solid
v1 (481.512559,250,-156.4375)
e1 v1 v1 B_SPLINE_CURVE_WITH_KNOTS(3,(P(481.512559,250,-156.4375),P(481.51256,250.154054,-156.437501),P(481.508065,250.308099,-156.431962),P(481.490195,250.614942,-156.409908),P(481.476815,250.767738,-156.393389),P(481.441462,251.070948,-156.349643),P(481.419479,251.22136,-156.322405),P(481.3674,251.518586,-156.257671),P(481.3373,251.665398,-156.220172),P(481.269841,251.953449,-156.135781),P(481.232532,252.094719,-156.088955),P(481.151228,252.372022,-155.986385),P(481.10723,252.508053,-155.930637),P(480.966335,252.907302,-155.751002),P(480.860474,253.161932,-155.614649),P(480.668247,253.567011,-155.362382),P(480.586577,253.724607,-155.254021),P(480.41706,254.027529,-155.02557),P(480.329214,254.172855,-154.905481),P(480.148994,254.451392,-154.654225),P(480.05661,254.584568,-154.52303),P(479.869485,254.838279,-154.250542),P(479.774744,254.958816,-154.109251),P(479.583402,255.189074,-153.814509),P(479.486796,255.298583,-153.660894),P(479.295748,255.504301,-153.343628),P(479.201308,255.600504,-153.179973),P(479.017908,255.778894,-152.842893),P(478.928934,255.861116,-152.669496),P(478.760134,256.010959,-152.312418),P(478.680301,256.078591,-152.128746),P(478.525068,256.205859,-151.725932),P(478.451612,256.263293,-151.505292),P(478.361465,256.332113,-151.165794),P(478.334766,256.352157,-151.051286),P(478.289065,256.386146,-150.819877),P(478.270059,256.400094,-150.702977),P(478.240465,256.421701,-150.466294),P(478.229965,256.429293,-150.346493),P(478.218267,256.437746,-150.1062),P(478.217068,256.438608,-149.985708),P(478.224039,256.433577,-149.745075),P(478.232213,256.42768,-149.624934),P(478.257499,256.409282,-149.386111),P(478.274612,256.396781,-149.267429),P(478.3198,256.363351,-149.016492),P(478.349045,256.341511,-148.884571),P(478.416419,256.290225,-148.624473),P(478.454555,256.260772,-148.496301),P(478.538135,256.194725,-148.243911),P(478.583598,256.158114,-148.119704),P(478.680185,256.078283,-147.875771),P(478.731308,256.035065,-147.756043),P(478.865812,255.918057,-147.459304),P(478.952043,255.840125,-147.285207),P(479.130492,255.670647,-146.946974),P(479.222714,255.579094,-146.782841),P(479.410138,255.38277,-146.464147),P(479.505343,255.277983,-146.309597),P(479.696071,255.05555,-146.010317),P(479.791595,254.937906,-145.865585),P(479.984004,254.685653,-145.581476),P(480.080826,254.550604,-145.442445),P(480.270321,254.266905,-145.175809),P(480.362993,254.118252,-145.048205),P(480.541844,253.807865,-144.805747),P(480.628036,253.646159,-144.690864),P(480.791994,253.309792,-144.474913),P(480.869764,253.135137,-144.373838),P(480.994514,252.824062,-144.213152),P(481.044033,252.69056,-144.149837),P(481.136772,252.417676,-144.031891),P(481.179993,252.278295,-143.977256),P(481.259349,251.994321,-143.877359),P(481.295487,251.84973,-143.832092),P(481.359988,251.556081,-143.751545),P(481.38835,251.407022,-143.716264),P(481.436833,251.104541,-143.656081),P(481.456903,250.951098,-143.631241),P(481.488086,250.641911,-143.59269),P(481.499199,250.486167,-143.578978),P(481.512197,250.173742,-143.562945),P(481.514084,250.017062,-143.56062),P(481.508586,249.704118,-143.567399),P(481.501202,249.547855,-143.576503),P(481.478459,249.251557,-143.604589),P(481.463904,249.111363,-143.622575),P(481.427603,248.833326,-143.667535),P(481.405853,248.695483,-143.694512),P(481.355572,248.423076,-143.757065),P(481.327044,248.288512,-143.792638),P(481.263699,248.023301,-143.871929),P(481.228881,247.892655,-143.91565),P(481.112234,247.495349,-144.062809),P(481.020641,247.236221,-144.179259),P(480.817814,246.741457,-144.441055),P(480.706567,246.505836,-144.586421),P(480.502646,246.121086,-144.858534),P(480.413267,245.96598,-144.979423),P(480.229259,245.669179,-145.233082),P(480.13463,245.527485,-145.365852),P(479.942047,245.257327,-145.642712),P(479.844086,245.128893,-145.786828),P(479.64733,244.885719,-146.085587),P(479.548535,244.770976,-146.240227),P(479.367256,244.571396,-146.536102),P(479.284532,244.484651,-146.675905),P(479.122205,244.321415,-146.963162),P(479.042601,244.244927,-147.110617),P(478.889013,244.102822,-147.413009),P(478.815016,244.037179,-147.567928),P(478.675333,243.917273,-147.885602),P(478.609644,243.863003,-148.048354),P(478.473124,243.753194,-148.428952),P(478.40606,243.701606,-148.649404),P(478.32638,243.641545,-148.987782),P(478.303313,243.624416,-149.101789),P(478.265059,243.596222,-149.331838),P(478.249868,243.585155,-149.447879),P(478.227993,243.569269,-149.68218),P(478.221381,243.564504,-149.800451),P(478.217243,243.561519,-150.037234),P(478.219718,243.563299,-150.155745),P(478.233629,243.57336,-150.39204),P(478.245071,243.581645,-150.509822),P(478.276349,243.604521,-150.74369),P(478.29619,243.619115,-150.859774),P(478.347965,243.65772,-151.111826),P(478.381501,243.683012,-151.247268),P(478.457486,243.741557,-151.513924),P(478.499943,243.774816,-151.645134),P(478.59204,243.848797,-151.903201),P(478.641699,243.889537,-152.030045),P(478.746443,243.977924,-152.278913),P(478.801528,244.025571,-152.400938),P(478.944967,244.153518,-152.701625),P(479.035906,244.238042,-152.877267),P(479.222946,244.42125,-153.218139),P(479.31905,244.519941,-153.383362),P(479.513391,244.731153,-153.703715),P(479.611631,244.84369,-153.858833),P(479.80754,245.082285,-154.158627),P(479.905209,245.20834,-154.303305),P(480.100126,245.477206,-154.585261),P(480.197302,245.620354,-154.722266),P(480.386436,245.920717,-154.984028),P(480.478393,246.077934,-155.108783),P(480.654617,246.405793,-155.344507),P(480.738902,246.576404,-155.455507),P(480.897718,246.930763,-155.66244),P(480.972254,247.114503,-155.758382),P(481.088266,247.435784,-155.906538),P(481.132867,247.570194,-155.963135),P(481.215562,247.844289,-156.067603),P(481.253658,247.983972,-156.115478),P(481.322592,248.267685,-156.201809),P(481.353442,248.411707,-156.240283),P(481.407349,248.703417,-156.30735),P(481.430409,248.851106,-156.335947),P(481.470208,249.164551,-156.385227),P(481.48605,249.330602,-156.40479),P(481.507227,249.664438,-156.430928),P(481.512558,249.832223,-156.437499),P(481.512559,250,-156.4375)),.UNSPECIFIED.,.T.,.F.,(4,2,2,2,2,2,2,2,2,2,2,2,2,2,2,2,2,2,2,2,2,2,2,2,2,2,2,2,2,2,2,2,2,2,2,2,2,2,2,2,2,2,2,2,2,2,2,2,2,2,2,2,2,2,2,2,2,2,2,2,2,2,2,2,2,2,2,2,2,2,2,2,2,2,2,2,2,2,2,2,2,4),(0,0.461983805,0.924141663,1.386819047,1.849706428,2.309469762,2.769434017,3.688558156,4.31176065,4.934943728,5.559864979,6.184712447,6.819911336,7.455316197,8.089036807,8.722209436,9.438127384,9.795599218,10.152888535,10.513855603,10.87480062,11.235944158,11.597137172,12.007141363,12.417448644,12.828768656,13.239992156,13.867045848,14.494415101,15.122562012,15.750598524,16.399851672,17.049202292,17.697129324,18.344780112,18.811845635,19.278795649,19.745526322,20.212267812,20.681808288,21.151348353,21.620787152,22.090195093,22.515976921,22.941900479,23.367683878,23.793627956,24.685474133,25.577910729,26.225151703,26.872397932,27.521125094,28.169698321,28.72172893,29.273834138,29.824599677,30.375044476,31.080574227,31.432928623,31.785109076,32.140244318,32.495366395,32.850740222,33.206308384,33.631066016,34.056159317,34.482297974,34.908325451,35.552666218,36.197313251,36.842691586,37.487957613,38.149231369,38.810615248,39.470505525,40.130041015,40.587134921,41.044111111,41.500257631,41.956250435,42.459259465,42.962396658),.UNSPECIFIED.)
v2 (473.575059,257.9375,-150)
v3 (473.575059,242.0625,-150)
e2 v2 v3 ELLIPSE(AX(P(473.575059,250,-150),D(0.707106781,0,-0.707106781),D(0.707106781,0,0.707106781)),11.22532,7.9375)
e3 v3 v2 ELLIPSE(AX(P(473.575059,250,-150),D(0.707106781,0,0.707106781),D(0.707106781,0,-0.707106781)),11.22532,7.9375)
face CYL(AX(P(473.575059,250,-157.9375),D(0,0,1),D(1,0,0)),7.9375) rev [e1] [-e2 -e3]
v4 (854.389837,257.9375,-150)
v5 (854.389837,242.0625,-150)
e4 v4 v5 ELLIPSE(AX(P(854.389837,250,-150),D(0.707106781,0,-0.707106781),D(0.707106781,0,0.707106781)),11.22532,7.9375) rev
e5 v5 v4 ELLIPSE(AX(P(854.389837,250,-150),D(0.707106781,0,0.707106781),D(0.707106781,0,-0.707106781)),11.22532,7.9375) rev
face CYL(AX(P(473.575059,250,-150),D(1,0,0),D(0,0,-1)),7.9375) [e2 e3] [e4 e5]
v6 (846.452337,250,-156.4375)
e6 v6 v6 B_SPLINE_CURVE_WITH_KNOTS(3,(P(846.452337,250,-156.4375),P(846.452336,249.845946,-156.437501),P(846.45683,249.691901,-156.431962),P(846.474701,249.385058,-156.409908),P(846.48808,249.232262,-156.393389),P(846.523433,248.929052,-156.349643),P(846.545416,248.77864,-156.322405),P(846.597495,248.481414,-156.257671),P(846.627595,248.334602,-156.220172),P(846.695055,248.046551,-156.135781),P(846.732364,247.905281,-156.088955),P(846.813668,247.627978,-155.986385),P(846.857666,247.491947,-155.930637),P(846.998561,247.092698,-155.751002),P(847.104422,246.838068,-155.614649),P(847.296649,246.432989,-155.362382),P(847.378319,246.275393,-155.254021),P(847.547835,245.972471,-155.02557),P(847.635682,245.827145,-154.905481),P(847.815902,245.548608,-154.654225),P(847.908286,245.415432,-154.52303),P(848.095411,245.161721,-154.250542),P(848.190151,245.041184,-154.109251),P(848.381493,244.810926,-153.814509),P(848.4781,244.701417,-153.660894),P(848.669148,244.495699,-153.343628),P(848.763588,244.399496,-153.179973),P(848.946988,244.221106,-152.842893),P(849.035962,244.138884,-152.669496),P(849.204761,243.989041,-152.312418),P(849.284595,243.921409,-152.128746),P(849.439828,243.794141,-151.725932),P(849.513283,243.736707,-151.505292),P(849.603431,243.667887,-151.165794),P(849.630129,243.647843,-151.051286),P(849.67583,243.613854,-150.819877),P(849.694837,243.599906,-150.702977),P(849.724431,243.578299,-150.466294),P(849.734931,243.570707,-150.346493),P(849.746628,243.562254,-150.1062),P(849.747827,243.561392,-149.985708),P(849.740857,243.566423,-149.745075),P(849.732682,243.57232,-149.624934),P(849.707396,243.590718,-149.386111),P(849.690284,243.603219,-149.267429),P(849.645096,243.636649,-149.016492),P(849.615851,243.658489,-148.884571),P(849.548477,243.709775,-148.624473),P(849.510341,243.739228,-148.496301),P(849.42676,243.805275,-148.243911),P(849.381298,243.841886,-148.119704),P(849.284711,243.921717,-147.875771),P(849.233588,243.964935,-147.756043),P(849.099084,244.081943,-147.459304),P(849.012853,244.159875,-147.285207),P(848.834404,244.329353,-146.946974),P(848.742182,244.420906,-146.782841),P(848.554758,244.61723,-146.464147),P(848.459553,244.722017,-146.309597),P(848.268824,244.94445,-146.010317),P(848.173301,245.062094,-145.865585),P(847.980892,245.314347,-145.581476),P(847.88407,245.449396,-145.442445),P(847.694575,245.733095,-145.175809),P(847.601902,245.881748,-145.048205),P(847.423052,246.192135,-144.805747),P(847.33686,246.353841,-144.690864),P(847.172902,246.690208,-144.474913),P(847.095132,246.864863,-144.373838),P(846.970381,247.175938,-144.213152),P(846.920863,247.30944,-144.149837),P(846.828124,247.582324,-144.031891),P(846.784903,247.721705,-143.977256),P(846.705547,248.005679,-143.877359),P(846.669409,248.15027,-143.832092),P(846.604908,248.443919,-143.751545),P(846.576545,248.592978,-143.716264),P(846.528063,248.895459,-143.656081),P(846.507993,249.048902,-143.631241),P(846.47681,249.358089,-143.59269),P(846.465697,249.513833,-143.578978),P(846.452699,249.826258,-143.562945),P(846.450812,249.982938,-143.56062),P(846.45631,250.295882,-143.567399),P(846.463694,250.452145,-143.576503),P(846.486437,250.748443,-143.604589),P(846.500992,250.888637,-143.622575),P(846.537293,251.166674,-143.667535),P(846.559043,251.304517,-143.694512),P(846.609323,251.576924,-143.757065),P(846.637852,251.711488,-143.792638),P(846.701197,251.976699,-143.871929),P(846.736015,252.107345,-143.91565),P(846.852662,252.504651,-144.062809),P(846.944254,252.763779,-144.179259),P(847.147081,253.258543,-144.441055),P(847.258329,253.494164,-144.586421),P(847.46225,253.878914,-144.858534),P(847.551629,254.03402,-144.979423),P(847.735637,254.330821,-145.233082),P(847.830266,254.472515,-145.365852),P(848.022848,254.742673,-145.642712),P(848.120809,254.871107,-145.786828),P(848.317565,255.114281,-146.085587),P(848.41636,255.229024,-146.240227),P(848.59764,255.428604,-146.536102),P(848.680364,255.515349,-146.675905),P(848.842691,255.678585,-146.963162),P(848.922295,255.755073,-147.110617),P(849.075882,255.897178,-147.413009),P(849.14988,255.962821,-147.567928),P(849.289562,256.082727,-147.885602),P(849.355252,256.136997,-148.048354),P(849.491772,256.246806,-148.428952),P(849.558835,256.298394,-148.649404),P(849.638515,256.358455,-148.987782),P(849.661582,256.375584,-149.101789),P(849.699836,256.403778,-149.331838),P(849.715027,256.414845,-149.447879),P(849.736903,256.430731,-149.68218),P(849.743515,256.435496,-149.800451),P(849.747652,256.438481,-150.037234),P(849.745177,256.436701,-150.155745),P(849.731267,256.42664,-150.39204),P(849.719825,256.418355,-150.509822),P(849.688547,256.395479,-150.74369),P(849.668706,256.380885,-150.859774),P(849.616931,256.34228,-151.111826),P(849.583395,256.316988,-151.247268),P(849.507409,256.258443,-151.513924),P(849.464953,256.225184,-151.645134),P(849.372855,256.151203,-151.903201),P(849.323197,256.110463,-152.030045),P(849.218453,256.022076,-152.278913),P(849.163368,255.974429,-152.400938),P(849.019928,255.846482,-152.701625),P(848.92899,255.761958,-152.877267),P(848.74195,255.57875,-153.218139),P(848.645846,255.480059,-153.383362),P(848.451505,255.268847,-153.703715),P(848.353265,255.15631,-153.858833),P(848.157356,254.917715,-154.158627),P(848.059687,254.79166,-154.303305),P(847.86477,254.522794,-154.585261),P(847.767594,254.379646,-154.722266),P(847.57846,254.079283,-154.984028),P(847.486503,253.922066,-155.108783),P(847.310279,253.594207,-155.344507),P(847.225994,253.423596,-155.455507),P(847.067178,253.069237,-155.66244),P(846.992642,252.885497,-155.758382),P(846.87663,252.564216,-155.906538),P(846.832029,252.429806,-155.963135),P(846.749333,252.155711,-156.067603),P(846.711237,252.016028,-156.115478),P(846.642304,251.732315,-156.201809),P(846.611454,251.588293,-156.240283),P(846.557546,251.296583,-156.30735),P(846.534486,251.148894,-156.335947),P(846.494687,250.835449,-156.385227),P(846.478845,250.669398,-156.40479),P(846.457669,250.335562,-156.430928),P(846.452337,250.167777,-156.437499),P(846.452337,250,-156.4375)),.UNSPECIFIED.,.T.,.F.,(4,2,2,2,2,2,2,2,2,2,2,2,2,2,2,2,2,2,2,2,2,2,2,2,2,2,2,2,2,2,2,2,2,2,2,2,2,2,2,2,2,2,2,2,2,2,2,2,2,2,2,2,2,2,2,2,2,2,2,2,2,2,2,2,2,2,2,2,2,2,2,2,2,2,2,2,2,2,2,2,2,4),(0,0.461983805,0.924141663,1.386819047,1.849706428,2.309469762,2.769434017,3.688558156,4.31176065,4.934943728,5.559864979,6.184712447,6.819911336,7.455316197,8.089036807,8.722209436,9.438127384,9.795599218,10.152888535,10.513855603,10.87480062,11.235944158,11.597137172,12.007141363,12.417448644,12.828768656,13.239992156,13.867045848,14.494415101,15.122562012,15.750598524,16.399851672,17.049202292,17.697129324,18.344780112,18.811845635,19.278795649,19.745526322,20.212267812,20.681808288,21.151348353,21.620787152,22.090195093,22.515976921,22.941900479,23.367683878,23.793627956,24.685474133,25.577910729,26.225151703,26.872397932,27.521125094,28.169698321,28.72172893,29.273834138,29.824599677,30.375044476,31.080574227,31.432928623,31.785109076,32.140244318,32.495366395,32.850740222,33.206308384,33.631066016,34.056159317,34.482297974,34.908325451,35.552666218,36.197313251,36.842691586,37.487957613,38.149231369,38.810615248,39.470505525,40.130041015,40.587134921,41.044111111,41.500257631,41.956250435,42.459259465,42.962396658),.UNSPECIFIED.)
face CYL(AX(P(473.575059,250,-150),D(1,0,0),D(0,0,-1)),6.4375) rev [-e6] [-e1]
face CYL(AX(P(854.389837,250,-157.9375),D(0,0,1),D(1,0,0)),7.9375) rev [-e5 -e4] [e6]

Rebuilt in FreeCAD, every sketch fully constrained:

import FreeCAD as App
import Part
import Sketcher
from FreeCAD import Vector
Q = App.Units.Quantity

doc = App.newDocument("Part")
body = doc.addObject("PartDesign::Body", "Body")

sketch1 = doc.addObject("Sketcher::SketchObject", "Sketch")
body.addObject(sketch1)
sketch1.AttachmentSupport = (doc.YZ_Plane, [""])
sketch1.MapMode = "FlatFace"
sketch1.AttachmentOffset = App.Placement(Vector(0, 0, 854.389837), App.Rotation())
sketch1.addGeometry([
    Part.Circle(Vector(250, -150, 0), Vector(0, 0, 1), 8),
    Part.Circle(Vector(250, -150, 0), Vector(0, 0, 1), 6),
], False)
sketch1.addConstraint([
    Sketcher.Constraint("Coincident", 1, 3, 0, 3),
    Sketcher.Constraint("Diameter", 0, Q("0.625 in")),
    Sketcher.Constraint("Diameter", 1, 12.875),
    Sketcher.Constraint("DistanceX", -1, 1, 0, 3, 250.0),
    Sketcher.Constraint("DistanceY", 0, 3, -1, 1, 150.0),
])
pad1 = doc.addObject("PartDesign::Pad", "Pad")
body.addObject(pad1)
pad1.Profile = sketch1
pad1.Length = 380.814778
pad1.Reversed = True

sketch2 = doc.addObject("Sketcher::SketchObject", "Sketch001")
body.addObject(sketch2)
sketch2.AttachmentSupport = (doc.XY_Plane, [""])
sketch2.MapMode = "FlatFace"
sketch2.addGeometry([
    Part.Circle(Vector(474, 250, 0), Vector(0, 0, 1), 8),
    Part.Circle(Vector(854, 250, 0), Vector(0, 0, 1), 8),
], False)
sketch2.addConstraint([
    Sketcher.Constraint("Equal", 0, 1),
    Sketcher.Constraint("Horizontal", 0, 3, 1, 3),
    Sketcher.Constraint("Diameter", 0, Q("0.625 in")),
    Sketcher.Constraint("DistanceY", -1, 1, 0, 3, 250.0),
    Sketcher.Constraint("DistanceX", -1, 1, 0, 3, 473.575059),
    Sketcher.Constraint("DistanceX", -1, 1, 1, 3, 854.389837),
])
pocket1 = doc.addObject("PartDesign::Pocket", "Pocket")
body.addObject(pocket1)
pocket1.Profile = sketch2
pocket1.Type = "ThroughAll"
pocket1.Midplane = True

doc.recompute()
